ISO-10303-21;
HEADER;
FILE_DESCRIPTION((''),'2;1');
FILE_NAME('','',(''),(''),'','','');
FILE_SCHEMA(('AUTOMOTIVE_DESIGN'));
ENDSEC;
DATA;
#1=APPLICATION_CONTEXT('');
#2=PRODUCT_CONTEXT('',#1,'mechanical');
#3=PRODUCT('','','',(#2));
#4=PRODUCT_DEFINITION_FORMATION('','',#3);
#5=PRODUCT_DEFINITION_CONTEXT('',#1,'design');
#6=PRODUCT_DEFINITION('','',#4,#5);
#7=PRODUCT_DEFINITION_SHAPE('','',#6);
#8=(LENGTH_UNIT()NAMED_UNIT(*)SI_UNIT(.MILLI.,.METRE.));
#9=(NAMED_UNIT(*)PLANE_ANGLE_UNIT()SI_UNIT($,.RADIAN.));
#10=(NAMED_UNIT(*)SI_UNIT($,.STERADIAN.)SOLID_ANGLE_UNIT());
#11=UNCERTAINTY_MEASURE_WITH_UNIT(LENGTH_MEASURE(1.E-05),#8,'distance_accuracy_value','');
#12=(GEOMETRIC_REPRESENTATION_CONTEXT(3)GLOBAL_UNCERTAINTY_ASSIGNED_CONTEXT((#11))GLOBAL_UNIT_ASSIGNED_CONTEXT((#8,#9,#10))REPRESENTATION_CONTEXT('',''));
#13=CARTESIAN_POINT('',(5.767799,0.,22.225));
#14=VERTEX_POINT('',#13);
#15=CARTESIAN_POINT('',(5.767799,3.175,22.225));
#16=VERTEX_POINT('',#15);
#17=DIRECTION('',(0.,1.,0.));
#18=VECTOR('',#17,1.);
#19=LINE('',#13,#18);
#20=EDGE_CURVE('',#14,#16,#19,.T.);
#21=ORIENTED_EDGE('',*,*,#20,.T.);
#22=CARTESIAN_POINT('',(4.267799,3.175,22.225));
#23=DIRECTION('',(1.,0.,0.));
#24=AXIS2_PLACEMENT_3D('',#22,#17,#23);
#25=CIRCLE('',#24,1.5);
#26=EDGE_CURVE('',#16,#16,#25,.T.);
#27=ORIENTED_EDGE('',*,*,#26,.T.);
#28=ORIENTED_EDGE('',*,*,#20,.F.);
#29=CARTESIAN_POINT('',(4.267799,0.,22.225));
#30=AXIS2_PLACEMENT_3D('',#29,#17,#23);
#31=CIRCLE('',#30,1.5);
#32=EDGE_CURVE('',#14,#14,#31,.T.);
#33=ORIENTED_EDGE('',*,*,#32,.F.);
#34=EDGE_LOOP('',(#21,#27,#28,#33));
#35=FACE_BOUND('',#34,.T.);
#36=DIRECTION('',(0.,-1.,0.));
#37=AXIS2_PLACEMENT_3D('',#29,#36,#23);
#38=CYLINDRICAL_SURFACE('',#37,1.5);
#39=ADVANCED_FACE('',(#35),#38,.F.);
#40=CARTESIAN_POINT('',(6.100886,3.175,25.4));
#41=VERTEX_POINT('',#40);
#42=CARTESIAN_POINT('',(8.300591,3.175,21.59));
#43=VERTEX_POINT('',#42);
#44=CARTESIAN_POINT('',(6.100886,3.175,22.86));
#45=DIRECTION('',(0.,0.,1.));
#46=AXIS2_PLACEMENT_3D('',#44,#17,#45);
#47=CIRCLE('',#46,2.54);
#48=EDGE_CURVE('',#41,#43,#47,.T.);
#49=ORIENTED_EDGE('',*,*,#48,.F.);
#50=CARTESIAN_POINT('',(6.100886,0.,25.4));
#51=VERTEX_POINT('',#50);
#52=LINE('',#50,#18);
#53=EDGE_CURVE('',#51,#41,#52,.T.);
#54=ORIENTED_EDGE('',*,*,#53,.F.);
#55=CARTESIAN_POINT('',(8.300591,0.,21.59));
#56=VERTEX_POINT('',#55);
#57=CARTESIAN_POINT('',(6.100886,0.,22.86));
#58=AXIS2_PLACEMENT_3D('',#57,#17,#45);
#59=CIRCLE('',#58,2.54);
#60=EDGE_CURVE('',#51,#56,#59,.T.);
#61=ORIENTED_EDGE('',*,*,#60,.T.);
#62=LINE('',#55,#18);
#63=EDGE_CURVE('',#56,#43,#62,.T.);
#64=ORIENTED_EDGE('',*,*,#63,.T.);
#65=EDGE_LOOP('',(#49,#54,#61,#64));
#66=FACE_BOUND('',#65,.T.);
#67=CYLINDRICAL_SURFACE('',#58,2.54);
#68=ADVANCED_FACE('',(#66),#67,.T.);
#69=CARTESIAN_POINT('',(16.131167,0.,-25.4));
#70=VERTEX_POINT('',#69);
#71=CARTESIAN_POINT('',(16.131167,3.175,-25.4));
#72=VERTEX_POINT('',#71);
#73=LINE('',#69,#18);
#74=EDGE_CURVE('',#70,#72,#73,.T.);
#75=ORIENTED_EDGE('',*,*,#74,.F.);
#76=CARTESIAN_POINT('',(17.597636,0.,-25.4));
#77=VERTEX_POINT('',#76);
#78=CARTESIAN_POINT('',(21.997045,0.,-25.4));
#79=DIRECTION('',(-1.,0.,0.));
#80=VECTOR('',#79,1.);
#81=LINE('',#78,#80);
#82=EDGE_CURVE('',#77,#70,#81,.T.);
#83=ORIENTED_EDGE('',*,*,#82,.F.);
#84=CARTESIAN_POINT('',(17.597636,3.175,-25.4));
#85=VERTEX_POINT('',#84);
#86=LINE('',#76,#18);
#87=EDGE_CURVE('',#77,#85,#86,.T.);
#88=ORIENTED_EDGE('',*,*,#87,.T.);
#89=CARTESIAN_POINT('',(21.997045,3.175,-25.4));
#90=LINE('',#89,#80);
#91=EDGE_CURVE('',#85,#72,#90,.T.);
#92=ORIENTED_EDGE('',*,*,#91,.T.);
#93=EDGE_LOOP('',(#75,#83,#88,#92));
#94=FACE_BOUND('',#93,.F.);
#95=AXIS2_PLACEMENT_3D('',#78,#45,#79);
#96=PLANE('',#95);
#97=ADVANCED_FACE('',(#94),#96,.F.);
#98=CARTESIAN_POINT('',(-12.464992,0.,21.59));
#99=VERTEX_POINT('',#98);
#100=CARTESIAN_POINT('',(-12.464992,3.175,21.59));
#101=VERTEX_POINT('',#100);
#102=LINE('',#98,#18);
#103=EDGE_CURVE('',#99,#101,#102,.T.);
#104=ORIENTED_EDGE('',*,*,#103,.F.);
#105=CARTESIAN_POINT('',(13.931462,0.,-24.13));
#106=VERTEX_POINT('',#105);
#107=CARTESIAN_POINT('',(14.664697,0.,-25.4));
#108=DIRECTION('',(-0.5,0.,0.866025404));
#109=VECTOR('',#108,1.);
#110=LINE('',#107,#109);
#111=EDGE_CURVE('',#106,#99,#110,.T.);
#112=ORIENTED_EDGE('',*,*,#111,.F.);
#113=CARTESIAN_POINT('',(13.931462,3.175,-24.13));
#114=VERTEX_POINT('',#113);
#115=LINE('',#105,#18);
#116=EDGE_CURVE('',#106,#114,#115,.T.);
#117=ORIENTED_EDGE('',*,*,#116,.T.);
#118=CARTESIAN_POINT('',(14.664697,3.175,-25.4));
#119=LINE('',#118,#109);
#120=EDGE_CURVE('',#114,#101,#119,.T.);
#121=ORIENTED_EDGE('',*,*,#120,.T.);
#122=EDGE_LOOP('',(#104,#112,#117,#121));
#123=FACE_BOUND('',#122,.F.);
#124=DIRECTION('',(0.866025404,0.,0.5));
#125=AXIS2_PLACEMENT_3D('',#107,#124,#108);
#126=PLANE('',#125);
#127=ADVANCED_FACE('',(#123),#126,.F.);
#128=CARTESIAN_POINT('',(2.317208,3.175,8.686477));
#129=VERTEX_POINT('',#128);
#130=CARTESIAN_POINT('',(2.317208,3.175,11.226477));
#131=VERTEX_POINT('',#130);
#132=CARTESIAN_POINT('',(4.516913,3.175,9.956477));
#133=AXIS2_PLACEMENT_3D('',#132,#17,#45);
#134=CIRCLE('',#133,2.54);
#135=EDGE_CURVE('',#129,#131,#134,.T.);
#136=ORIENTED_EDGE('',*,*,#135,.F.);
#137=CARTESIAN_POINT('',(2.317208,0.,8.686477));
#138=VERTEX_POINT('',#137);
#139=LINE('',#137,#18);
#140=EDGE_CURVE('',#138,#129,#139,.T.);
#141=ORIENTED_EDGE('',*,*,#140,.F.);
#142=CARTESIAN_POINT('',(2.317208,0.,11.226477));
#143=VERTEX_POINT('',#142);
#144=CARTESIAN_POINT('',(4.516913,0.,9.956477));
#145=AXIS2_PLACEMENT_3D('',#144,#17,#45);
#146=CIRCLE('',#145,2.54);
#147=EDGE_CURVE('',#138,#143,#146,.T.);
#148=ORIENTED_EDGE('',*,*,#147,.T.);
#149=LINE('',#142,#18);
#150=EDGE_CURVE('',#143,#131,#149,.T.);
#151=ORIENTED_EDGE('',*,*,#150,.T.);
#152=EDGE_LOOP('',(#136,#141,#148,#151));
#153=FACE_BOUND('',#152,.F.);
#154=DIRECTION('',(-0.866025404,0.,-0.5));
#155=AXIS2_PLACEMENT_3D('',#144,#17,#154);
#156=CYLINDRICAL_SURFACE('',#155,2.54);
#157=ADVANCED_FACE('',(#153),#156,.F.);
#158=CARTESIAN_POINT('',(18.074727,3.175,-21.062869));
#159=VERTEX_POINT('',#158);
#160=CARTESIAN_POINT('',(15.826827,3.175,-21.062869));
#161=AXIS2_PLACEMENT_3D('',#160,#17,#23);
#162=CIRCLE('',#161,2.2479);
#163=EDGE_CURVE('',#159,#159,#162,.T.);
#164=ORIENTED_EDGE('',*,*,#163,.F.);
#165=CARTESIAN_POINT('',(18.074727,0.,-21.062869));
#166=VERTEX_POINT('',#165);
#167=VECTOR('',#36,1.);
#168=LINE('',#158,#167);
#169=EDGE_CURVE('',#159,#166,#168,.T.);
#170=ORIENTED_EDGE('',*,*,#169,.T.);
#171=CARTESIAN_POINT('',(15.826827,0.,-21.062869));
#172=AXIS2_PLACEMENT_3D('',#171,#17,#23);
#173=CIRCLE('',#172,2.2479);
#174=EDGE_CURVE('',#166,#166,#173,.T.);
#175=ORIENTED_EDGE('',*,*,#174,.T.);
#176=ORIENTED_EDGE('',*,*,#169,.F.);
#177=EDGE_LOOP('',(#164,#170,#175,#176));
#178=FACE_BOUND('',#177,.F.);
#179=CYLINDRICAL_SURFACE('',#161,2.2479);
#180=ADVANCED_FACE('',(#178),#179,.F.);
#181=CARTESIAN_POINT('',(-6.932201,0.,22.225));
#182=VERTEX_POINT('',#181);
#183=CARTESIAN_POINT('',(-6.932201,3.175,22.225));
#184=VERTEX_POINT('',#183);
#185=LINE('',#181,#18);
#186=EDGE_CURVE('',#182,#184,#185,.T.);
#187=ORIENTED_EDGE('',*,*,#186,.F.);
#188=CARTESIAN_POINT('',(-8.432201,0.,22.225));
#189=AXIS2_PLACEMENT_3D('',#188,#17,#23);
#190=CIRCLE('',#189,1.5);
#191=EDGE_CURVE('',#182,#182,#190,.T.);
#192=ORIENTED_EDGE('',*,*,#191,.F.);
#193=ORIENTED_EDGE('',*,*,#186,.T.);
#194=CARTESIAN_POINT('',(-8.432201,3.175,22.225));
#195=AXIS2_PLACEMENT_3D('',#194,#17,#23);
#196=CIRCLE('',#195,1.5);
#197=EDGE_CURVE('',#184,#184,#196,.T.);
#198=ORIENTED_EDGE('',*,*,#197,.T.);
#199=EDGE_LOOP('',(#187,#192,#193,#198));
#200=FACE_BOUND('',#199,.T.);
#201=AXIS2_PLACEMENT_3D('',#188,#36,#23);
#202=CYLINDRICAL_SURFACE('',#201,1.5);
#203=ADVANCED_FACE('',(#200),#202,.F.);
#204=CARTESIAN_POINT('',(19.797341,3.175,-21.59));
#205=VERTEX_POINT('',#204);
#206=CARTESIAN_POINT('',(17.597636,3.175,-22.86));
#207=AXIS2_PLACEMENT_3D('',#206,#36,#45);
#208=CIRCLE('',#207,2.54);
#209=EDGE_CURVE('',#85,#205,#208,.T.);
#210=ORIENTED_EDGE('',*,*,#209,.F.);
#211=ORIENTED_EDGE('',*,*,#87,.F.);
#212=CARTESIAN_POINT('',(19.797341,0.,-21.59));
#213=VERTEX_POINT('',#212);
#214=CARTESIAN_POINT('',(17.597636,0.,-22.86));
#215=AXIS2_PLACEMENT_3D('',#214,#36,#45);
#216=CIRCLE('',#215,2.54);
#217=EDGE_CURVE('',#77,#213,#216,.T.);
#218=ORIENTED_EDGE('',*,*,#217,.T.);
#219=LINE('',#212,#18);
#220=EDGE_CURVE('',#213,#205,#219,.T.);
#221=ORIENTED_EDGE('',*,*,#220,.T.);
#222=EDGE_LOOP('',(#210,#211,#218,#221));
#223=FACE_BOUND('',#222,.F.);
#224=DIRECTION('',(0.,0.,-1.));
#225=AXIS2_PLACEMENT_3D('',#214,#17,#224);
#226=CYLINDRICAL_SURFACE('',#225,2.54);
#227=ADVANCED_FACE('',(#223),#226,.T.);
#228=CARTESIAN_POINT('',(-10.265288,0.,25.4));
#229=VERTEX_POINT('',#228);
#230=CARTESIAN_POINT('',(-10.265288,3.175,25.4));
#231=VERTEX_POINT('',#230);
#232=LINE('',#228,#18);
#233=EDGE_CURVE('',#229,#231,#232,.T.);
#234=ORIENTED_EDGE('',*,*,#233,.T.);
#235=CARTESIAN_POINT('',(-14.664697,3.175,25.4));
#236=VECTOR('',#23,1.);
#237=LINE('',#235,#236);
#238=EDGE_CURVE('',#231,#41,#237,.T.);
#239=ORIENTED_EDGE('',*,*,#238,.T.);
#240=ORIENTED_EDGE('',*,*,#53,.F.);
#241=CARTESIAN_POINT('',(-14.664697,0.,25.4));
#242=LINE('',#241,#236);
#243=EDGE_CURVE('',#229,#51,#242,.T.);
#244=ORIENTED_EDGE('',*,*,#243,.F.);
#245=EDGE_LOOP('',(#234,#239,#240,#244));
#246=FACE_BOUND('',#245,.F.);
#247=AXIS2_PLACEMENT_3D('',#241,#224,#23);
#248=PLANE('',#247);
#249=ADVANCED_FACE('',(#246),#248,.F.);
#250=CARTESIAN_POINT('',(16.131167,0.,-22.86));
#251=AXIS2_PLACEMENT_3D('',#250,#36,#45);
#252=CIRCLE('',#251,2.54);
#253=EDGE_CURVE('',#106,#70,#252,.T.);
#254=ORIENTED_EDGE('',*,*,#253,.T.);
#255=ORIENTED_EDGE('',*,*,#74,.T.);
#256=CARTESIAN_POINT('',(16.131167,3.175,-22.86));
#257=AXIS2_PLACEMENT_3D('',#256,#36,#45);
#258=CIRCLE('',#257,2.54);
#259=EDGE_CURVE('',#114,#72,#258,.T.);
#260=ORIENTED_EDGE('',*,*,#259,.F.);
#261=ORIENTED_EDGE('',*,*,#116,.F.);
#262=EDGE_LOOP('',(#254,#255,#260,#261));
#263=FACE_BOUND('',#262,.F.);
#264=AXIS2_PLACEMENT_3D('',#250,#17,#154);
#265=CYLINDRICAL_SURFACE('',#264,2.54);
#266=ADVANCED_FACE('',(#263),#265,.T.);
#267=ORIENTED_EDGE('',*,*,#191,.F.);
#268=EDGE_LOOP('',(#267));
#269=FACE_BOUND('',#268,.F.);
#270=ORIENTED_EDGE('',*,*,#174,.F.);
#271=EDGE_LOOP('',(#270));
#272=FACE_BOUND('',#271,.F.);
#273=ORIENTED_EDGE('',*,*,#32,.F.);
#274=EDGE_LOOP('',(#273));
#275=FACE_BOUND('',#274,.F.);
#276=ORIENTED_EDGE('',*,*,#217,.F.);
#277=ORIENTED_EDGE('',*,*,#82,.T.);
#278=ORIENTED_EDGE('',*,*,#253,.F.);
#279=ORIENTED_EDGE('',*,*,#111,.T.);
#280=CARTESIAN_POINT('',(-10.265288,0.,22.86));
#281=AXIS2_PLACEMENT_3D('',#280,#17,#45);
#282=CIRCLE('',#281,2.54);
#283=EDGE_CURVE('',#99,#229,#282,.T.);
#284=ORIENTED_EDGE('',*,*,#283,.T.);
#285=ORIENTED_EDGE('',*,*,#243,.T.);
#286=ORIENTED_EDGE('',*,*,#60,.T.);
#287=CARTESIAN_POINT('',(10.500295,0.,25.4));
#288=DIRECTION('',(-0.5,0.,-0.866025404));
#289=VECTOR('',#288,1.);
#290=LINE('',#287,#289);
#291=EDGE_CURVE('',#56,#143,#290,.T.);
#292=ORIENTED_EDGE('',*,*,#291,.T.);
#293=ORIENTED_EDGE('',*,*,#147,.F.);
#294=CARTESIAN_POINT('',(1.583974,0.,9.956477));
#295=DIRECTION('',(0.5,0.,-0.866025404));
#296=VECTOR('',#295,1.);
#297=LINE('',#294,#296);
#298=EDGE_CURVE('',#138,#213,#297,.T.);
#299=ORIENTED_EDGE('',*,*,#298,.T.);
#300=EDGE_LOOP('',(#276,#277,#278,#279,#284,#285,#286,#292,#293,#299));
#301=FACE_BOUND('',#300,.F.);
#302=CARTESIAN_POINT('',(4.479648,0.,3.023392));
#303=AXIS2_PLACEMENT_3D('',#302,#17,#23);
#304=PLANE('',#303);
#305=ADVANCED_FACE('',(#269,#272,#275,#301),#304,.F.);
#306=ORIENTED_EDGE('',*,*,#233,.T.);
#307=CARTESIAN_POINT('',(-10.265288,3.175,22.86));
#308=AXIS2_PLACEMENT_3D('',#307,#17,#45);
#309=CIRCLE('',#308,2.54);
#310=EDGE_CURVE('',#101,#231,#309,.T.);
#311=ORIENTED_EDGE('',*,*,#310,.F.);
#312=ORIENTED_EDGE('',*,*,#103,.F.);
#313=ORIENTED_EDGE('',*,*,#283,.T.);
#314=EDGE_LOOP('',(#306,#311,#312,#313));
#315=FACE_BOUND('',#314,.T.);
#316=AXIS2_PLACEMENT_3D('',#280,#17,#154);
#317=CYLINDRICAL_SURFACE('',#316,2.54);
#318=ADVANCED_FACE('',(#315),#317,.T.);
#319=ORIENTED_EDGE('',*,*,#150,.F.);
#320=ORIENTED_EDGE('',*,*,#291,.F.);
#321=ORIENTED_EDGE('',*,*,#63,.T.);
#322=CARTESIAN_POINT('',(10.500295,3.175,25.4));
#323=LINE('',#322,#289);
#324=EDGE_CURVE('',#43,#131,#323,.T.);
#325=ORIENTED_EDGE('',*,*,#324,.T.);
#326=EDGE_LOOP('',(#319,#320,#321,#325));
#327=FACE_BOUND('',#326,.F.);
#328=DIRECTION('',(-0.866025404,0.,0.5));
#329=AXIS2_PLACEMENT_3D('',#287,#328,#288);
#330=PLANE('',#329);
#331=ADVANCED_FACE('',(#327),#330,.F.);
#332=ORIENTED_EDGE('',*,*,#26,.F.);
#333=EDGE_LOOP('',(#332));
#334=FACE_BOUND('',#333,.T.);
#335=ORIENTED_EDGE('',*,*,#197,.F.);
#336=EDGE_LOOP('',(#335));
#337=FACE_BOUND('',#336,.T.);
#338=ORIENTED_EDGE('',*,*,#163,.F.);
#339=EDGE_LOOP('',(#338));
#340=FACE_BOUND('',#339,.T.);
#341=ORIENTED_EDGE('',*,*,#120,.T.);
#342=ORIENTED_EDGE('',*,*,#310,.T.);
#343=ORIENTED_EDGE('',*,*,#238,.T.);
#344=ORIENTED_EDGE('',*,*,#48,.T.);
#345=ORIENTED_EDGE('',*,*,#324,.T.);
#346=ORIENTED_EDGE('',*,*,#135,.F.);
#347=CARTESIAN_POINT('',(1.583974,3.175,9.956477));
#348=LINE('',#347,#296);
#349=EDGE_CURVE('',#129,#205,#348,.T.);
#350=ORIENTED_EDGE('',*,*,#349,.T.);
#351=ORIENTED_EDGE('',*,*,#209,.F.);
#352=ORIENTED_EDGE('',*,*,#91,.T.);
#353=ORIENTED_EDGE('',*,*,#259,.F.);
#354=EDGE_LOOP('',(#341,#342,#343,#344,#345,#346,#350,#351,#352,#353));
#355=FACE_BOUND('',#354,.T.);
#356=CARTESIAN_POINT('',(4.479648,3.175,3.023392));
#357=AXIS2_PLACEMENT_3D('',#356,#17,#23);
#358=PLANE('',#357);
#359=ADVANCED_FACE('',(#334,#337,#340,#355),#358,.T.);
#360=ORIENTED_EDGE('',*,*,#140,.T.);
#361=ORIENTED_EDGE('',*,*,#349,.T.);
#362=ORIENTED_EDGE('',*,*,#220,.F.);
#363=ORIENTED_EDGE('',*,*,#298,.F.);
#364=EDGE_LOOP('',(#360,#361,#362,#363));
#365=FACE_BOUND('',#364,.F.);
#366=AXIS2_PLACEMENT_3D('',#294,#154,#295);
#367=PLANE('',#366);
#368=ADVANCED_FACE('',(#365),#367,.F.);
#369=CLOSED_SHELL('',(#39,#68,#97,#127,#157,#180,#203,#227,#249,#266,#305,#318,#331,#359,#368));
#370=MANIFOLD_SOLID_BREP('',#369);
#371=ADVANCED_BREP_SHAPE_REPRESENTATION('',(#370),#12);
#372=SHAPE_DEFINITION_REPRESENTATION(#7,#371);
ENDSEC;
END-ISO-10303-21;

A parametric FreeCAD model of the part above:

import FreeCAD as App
import Part
import Sketcher

V = App.Vector
Q = App.Units.Quantity


def edges_at(feature, points):
    """Names of the edges that pass closest to the given points."""
    edges = feature.Shape.Edges
    near = lambda p: min(range(len(edges)), key=lambda i: edges[i].distToShape(Part.Vertex(*p))[0])
    return sorted({f"Edge{near(p) + 1}" for p in points})

doc = App.newDocument("Part")
body = doc.addObject("PartDesign::Body", "Body")

# Sketch on XZ plane
sketch1 = body.newObject("Sketcher::SketchObject", "Sketch")
sketch1.AttachmentSupport = (doc.getObject("XZ_Plane"), [""])
sketch1.MapMode = "FlatFace"
sketch1.addGeometry([
    Part.LineSegment(V(14.7, -25.4, 0), V(-14.7, 25.4, 0)),  # 0
    Part.LineSegment(V(-14.7, 25.4, 0), V(10.5, 25.4, 0)),  # 1
    Part.LineSegment(V(10.5, 25.4, 0), V(1.6, 10, 0)),  # 2
    Part.LineSegment(V(1.6, 10, 0), V(22, -25.4, 0)),  # 3
    Part.LineSegment(V(22, -25.4, 0), V(14.7, -25.4, 0)),  # 4
    Part.Circle(V(-8.4, 22.2, 0), V(0, 0, 1), 1.5),  # 5
    Part.Circle(V(4.3, 22.2, 0), V(0, 0, 1), 1.5),  # 6
], False)
sketch1.addConstraint([
    Sketcher.Constraint("Coincident", 0, 2, 1, 1),
    Sketcher.Constraint("Coincident", 1, 2, 2, 1),
    Sketcher.Constraint("Coincident", 2, 2, 3, 1),
    Sketcher.Constraint("Coincident", 3, 2, 4, 1),
    Sketcher.Constraint("Coincident", 4, 2, 0, 1),
    Sketcher.Constraint("Horizontal", 1),
    Sketcher.Constraint("Horizontal", 4),
    Sketcher.Constraint("Equal", 5, 6),
    Sketcher.Constraint("Symmetric", 0, 2, 4, 2, -1, 1),
    Sketcher.Constraint("Parallel", 0, 3),
    Sketcher.Constraint("Horizontal", 5, 3, 6, 3),
    Sketcher.Constraint("DistanceY", -1, 1, 0, 2, Q("1 in")),
    Sketcher.Constraint("Angle", 0, Q("120 deg")),
    Sketcher.Constraint("Angle", 2, Q("-120 deg")),
    Sketcher.Constraint("DistanceX", 5, 3, 6, 3, Q("0.5 in")),
    Sketcher.Constraint("Diameter", 5, 3.0),
    Sketcher.Constraint("DistanceY", -1, 1, 5, 3, Q("0.875 in")),
    Sketcher.Constraint("DistanceX", 4, 2, 4, 1, 7.332348),
    Sketcher.Constraint("DistanceX", 5, 3, -1, 1, 8.432201),
    Sketcher.Constraint("DistanceX", 1, 2, 4, 2, 4.164401),
])
pad1 = body.newObject("PartDesign::Pad", "Pad")
pad1.Profile = sketch1
pad1.Length = Q("0.125 in")
pad1.Reversed = True

# Sketch on XZ plane
sketch2 = body.newObject("Sketcher::SketchObject", "Sketch001")
sketch2.AttachmentSupport = (doc.getObject("XZ_Plane"), [""])
sketch2.MapMode = "FlatFace"
sketch2.AttachmentOffset = App.Placement(V(0, 0, -0.125 * 25.4), App.Rotation())
sketch2.addGeometry(Part.Circle(V(15.8, -21.1, 0), V(0, 0, 1), 2.2), False)
sketch2.addConstraint([
    Sketcher.Constraint("Diameter", 0, Q("0.177 in")),
    Sketcher.Constraint("DistanceY", 0, 3, -1, 1, 21.062869),
    Sketcher.Constraint("DistanceX", -1, 1, 0, 3, 15.826827),
])
pocket1 = body.newObject("PartDesign::Pocket", "Pocket")
pocket1.Profile = sketch2
pocket1.Type = "ThroughAll"
pocket1.Reversed = True
doc.recompute()

fillet = body.newObject("PartDesign::Fillet", "Fillet")
fillet.Base = (pocket1, edges_at(pocket1, [
    (-14.665, 1.587, 25.4),
    (14.665, 1.587, -25.4),
    (21.997, 1.587, -25.4),
    (1.584, 1.587, 9.956),
    (10.5, 1.587, 25.4),
]))
fillet.Radius = Q("0.1 in")

doc.recompute()
